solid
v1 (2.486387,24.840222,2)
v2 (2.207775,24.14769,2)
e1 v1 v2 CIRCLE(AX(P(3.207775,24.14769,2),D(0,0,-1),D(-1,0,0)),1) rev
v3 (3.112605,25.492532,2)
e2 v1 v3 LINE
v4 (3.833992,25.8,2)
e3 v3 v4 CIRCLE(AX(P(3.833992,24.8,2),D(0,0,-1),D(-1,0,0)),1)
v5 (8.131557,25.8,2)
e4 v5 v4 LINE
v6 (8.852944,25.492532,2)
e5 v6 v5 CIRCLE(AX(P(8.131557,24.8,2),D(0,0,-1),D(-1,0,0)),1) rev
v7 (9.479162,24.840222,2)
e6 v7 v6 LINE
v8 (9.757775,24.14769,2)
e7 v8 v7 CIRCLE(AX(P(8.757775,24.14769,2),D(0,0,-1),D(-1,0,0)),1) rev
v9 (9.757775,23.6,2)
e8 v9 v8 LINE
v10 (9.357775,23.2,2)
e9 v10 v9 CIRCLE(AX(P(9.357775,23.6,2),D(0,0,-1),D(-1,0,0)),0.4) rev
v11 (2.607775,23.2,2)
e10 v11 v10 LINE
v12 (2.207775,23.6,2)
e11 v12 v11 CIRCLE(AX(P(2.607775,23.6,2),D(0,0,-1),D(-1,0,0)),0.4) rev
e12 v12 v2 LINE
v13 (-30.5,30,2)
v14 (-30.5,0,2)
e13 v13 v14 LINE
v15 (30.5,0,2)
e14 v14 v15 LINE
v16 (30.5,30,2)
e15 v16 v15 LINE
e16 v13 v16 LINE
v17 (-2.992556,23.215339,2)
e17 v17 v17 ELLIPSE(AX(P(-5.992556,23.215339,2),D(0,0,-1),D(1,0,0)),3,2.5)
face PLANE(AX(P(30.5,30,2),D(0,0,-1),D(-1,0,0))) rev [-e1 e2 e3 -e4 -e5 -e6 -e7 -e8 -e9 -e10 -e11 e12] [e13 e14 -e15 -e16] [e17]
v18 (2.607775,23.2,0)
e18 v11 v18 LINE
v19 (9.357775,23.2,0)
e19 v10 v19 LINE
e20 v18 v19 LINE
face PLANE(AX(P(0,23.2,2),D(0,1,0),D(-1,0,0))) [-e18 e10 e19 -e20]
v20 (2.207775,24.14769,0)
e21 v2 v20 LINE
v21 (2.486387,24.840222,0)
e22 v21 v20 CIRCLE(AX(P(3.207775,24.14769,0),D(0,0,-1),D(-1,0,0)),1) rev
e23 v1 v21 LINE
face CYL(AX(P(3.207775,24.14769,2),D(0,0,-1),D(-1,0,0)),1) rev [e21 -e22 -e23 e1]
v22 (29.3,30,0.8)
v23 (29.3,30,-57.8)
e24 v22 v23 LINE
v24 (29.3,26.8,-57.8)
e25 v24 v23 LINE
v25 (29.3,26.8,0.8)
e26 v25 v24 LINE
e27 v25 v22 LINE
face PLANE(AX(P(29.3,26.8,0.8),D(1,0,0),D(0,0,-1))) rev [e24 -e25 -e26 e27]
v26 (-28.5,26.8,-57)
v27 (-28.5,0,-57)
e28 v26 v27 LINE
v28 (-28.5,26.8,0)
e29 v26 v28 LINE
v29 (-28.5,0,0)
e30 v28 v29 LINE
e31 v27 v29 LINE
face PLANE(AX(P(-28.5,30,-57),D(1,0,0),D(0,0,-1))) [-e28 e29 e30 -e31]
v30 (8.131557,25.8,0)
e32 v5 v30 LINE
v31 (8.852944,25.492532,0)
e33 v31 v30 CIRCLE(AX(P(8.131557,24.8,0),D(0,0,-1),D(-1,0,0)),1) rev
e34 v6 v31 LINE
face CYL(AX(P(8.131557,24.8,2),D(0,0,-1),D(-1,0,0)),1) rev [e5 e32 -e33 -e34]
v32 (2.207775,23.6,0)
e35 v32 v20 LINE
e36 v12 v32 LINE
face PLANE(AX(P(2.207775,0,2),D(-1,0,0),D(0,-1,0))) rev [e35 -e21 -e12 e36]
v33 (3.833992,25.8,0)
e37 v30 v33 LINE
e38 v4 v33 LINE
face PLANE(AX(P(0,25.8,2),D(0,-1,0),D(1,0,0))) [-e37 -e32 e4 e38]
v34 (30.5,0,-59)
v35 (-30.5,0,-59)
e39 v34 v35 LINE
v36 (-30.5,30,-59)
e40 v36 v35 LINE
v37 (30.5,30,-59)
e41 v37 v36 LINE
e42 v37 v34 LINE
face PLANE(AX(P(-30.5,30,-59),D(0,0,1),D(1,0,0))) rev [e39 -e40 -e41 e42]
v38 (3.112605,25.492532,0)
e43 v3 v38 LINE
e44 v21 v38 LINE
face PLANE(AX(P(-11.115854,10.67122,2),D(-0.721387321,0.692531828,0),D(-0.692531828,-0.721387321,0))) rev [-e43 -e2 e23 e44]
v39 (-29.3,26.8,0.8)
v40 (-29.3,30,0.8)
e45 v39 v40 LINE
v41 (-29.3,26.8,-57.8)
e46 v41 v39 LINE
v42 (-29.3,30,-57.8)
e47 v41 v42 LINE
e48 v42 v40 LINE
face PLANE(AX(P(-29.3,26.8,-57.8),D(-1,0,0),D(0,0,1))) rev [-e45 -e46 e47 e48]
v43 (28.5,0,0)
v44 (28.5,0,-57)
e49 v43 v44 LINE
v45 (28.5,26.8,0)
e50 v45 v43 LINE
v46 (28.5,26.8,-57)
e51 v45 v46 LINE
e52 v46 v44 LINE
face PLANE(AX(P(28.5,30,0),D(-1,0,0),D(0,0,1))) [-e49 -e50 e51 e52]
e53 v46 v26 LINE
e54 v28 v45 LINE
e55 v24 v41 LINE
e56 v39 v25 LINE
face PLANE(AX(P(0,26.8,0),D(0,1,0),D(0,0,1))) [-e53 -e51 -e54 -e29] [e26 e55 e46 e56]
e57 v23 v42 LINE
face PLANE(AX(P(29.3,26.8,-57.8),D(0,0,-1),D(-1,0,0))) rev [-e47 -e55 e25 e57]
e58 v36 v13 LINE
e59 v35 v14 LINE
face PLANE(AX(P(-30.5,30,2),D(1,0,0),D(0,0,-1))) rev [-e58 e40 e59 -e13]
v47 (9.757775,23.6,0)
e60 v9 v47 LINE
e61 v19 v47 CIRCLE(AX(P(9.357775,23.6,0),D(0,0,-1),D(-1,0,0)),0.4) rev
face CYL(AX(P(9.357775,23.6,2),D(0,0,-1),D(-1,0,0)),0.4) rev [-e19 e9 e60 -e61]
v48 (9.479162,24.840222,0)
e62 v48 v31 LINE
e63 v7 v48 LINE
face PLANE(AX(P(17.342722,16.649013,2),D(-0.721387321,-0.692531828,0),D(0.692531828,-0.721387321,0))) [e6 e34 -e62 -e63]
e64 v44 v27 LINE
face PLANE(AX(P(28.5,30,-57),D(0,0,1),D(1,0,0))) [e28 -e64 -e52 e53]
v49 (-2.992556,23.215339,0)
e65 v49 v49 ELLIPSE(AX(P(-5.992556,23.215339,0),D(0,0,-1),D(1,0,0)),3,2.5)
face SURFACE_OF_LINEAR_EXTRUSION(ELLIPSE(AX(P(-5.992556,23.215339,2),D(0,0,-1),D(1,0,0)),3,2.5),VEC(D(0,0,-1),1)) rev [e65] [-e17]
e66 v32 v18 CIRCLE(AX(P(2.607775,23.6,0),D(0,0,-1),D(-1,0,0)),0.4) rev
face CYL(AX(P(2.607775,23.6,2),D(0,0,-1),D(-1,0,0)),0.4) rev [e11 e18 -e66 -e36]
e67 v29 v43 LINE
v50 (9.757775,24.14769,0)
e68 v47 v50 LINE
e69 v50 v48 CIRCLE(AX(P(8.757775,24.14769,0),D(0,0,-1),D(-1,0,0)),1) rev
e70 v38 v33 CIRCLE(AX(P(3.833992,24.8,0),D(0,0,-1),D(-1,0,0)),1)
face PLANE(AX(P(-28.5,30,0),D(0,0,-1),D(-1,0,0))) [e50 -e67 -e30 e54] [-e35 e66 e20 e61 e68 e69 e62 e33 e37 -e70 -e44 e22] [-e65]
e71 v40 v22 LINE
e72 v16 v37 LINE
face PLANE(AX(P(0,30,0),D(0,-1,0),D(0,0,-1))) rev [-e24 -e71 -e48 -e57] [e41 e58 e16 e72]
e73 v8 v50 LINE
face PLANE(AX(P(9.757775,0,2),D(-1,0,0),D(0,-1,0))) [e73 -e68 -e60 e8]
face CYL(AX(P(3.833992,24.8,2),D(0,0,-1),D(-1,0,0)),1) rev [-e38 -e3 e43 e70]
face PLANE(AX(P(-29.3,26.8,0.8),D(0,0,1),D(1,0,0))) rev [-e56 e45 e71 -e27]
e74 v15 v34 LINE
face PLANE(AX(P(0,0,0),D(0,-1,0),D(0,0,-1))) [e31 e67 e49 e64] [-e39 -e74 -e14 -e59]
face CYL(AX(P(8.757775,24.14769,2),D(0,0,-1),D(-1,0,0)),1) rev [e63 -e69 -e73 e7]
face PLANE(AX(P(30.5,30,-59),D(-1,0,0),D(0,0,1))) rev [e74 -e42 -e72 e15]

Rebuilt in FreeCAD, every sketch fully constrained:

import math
import FreeCAD as App
import Part
import Sketcher

V = App.Vector

doc = App.newDocument("Part")
body = doc.addObject("PartDesign::Body", "Body")

sketch1 = body.newObject("Sketcher::SketchObject", "Sketch")
sketch1.AttachmentSupport = (doc.getObject("XZ_Plane"), [""])
sketch1.MapMode = "FlatFace"
sketch1.addGeometry([
    Part.LineSegment(V(-30, -59, 0), V(-30, 2, 0)),
    Part.LineSegment(V(-30, 2, 0), V(30, 2, 0)),
    Part.LineSegment(V(30, 2, 0), V(30, -59, 0)),
    Part.LineSegment(V(30, -59, 0), V(-30, -59, 0)),
    Part.LineSegment(V(28, 0, 0), V(-28, 0, 0)),
    Part.LineSegment(V(-28, 0, 0), V(-28, -57, 0)),
    Part.LineSegment(V(-28, -57, 0), V(28, -57, 0)),
    Part.LineSegment(V(28, -57, 0), V(28, 0, 0)),
], False)
sketch1.addConstraint([
    Sketcher.Constraint("Coincident", 0, 2, 1, 1),
    Sketcher.Constraint("Coincident", 1, 2, 2, 1),
    Sketcher.Constraint("Coincident", 2, 2, 3, 1),
    Sketcher.Constraint("Coincident", 3, 2, 0, 1),
    Sketcher.Constraint("Coincident", 4, 2, 5, 1),
    Sketcher.Constraint("Coincident", 5, 2, 6, 1),
    Sketcher.Constraint("Coincident", 6, 2, 7, 1),
    Sketcher.Constraint("Coincident", 7, 2, 4, 1),
    Sketcher.Constraint("Vertical", 0),
    Sketcher.Constraint("Horizontal", 1),
    Sketcher.Constraint("Vertical", 2),
    Sketcher.Constraint("Horizontal", 3),
    Sketcher.Constraint("Horizontal", 4),
    Sketcher.Constraint("Vertical", 5),
    Sketcher.Constraint("Horizontal", 6),
    Sketcher.Constraint("Vertical", 7),
    Sketcher.Constraint("Symmetric", 4, 2, 7, 2, -1, 1),
    Sketcher.Constraint("Equal", 3, 0),
    Sketcher.Constraint("Equal", 6, 5),
    Sketcher.Constraint("DistanceX", 1, 1, 1, 2, 61.0),
    Sketcher.Constraint("DistanceX", 4, 2, 4, 1, 57.0),
    Sketcher.Constraint("DistanceY", -1, 1, 0, 2, 2.0),
    Sketcher.Constraint("DistanceX", 0, 2, 4, 2, 2.0),
])
pad1 = body.newObject("PartDesign::Pad", "Pad")
pad1.Profile = sketch1
pad1.Length = 30
pad1.Reversed = True

sketch2 = body.newObject("Sketcher::SketchObject", "Sketch001")
sketch2.AttachmentSupport = (doc.getObject("XZ_Plane"), [""])
sketch2.MapMode = "FlatFace"
sketch2.AttachmentOffset = App.Placement(V(0, 0, -30), App.Rotation())
sketch2.addGeometry([
    Part.LineSegment(V(-29, -58, 0), V(-29, 1, 0)),
    Part.LineSegment(V(-29, 1, 0), V(29, 1, 0)),
    Part.LineSegment(V(29, 1, 0), V(29, -58, 0)),
    Part.LineSegment(V(29, -58, 0), V(-29, -58, 0)),
], False)
sketch2.addConstraint([
    Sketcher.Constraint("Coincident", 0, 2, 1, 1),
    Sketcher.Constraint("Coincident", 1, 2, 2, 1),
    Sketcher.Constraint("Coincident", 2, 2, 3, 1),
    Sketcher.Constraint("Coincident", 3, 2, 0, 1),
    Sketcher.Constraint("Vertical", 0),
    Sketcher.Constraint("Horizontal", 1),
    Sketcher.Constraint("Vertical", 2),
    Sketcher.Constraint("Horizontal", 3),
    Sketcher.Constraint("Equal", 3, 0),
    Sketcher.Constraint("DistanceX", 1, 1, 1, 2, 58.6),
    Sketcher.Constraint("DistanceX", 0, 2, -1, 1, 29.3),
    Sketcher.Constraint("DistanceY", -1, 1, 0, 2, 0.8),
])
pocket1 = body.newObject("PartDesign::Pocket", "Pocket")
pocket1.Profile = sketch2
pocket1.Length = 3.2
pocket1.Reversed = True

sketch3 = body.newObject("Sketcher::SketchObject", "Sketch002")
sketch3.AttachmentSupport = (doc.getObject("XY_Plane"), [""])
sketch3.MapMode = "FlatFace"
sketch3.addGeometry([
    Part.ArcOfCircle(Part.Circle(V(8.131557, 24.8, 0), V(0, 0, 1), 1), math.radians(43.830861), math.radians(90)),
    Part.LineSegment(V(8.852944, 25.492532, 0), V(9.479162, 24.840222, 0)),
    Part.ArcOfCircle(Part.Circle(V(8.757775, 24.14769, 0), V(0, 0, 1), 1), math.radians(0), math.radians(43.830861)),
    Part.LineSegment(V(9.757775, 24.14769, 0), V(9.757775, 23.6, 0)),
    Part.ArcOfCircle(Part.Circle(V(9.357775, 23.6, 0), V(0, 0, 1), 0.4), math.radians(-90), math.radians(0)),
    Part.LineSegment(V(9.357775, 23.2, 0), V(2.607775, 23.2, 0)),
    Part.ArcOfCircle(Part.Circle(V(2.607775, 23.6, 0), V(0, 0, 1), 0.4), math.radians(-180), math.radians(-90)),
    Part.LineSegment(V(2.207775, 23.6, 0), V(2.207775, 24.14769, 0)),
    Part.ArcOfCircle(Part.Circle(V(3.207775, 24.14769, 0), V(0, 0, 1), 1), math.radians(136.169139), math.radians(180)),
    Part.LineSegment(V(2.486387, 24.840222, 0), V(3.112605, 25.492532, 0)),
    Part.ArcOfCircle(Part.Circle(V(3.833992, 24.8, 0), V(0, 0, 1), 1), math.radians(90), math.radians(136.169139)),
    Part.LineSegment(V(3.833992, 25.8, 0), V(8.131557, 25.8, 0)),
    Part.Ellipse(V(-2.992556, 23.215339, 0), V(-5.992556, 25.715339, 0), V(-5.992556, 23.215339, 0)),
], False)
sketch3.addConstraint([
    Sketcher.Constraint("Block", 12),
    Sketcher.Constraint("Tangent", 0, 1, 1, 1),
    Sketcher.Constraint("Tangent", 1, 2, 2, 2),
    Sketcher.Constraint("Tangent", 2, 1, 3, 1),
    Sketcher.Constraint("Tangent", 3, 2, 4, 2),
    Sketcher.Constraint("Tangent", 4, 1, 5, 1),
    Sketcher.Constraint("Tangent", 5, 2, 6, 2),
    Sketcher.Constraint("Tangent", 6, 1, 7, 1),
    Sketcher.Constraint("Tangent", 7, 2, 8, 2),
    Sketcher.Constraint("Tangent", 8, 1, 9, 1),
    Sketcher.Constraint("Tangent", 9, 2, 10, 2),
    Sketcher.Constraint("Tangent", 10, 1, 11, 1),
    Sketcher.Constraint("Tangent", 11, 2, 0, 2),
    Sketcher.Constraint("Vertical", 3),
    Sketcher.Constraint("Horizontal", 5),
    Sketcher.Constraint("Vertical", 7),
    Sketcher.Constraint("Horizontal", 11),
    Sketcher.Constraint("Equal", 0, 2),
    Sketcher.Constraint("Equal", 4, 6),
    Sketcher.Constraint("Equal", 2, 8),
    Sketcher.Constraint("Equal", 8, 10),
    Sketcher.Constraint("Horizontal", 2, 3, 8, 3),
    Sketcher.Constraint("Horizontal", 1, 2, 8, 1),
    Sketcher.Constraint("Radius", 0, 1.0),
    Sketcher.Constraint("Radius", 4, 0.4),
    Sketcher.Constraint("DistanceX", 5, 2, 5, 1, 6.75),
    Sketcher.Constraint("DistanceY", -1, 1, 0, 3, 24.8),
    Sketcher.Constraint("DistanceY", -1, 1, 4, 3, 23.6),
    Sketcher.Constraint("DistanceY", 3, 2, 3, 1, 0.54769),
    Sketcher.Constraint("DistanceX", 11, 1, 11, 2, 4.297564),
    Sketcher.Constraint("DistanceX", -1, 1, 1, 2, 9.479162),
])
pocket2 = body.newObject("PartDesign::Pocket", "Pocket001")
pocket2.Profile = sketch3
pocket2.Type = "ThroughAll"
pocket2.Reversed = True

doc.recompute()
